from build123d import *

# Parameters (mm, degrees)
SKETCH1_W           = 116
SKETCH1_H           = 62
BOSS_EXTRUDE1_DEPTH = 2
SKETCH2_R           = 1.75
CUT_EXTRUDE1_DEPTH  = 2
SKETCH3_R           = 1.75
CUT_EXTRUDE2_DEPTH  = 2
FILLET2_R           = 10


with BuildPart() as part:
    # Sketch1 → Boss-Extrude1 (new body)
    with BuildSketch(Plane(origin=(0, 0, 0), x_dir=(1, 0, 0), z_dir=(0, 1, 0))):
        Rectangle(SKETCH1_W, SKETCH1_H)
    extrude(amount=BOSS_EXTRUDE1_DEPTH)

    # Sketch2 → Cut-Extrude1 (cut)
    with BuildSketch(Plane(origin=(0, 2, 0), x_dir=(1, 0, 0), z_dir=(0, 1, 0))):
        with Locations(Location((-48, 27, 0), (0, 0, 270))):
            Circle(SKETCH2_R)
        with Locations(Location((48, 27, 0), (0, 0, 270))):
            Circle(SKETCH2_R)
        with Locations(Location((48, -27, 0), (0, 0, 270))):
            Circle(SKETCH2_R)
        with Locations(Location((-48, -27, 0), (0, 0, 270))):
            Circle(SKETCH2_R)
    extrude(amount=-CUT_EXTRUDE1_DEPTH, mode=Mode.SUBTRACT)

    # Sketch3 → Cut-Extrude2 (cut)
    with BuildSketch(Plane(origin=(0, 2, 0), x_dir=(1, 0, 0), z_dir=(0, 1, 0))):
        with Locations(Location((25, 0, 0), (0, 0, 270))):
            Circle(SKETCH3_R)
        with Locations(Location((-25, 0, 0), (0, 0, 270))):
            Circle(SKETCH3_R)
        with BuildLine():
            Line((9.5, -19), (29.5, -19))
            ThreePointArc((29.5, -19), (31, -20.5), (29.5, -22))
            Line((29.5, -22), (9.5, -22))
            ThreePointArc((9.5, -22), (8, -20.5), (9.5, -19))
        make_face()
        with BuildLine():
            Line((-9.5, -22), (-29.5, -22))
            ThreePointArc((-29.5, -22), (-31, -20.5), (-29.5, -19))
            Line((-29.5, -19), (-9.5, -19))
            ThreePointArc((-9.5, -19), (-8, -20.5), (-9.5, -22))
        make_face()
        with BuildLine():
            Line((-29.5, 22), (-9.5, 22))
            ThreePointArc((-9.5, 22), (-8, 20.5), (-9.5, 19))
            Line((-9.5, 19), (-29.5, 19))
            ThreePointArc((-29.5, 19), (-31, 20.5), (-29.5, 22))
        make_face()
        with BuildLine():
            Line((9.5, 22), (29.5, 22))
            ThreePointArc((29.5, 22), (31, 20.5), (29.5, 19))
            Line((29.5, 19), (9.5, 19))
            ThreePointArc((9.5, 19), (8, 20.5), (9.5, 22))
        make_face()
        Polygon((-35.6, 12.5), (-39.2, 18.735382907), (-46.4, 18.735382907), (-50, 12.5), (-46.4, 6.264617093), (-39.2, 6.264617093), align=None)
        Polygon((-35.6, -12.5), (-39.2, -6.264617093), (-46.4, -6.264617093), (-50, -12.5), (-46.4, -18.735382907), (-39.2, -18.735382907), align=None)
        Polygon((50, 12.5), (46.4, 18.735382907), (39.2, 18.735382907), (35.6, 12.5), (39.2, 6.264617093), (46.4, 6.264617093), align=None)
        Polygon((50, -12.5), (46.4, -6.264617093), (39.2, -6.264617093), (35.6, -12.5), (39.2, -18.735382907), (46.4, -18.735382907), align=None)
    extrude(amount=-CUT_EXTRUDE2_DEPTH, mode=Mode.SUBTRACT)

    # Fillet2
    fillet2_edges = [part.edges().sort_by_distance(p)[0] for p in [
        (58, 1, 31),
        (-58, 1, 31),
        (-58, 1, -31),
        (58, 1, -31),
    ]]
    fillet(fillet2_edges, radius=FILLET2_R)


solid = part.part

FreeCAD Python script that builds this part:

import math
import FreeCAD as App
import Part
import Sketcher
Q = App.Units.Quantity


def edges_at(feature, points):
    """Names of the edges that pass closest to the given points."""
    edges = feature.Shape.Edges
    near = lambda p: min(range(len(edges)), key=lambda i: edges[i].distToShape(Part.Vertex(*p))[0])
    return sorted({f"Edge{near(p) + 1}" for p in points})

doc = App.newDocument("Part")
body = doc.addObject("PartDesign::Body", "Body")

# Sketch on XZ plane
sketch1 = body.newObject("Sketcher::SketchObject", "Sketch")
sketch1.AttachmentSupport = (doc.getObject("XZ_Plane"), [""])
sketch1.MapMode = "FlatFace"
sketch1.addGeometry(Part.LineSegment(App.Vector(-58, -31, 0), App.Vector(-58, 31, 0)), False)
sketch1.addGeometry(Part.LineSegment(App.Vector(-58, 31, 0), App.Vector(58, 31, 0)), False)
sketch1.addGeometry(Part.LineSegment(App.Vector(58, 31, 0), App.Vector(58, -31, 0)), False)
sketch1.addGeometry(Part.LineSegment(App.Vector(58, -31, 0), App.Vector(-58, -31, 0)), False)
sketch1.addConstraint(Sketcher.Constraint("Coincident", 0, 2, 1, 1))
sketch1.addConstraint(Sketcher.Constraint("Coincident", 1, 2, 2, 1))
sketch1.addConstraint(Sketcher.Constraint("Coincident", 2, 2, 3, 1))
sketch1.addConstraint(Sketcher.Constraint("Coincident", 3, 2, 0, 1))
sketch1.addConstraint(Sketcher.Constraint("Vertical", 0))
sketch1.addConstraint(Sketcher.Constraint("Horizontal", 1))
sketch1.addConstraint(Sketcher.Constraint("Vertical", 2))
sketch1.addConstraint(Sketcher.Constraint("Horizontal", 3))
sketch1.addConstraint(Sketcher.Constraint("Symmetric", 0, 2, 2, 2, -1, 1))
sketch1.addConstraint(Sketcher.Constraint("DistanceX", 1, 1, 1, 2, Q("116 mm")))
sketch1.addConstraint(Sketcher.Constraint("DistanceY", 0, 1, 0, 2, Q("62 mm")))
pad1 = body.newObject("PartDesign::Pad", "Pad")
pad1.Profile = sketch1
pad1.Length = 2
pad1.Reversed = True

# Sketch on XZ plane
sketch2 = body.newObject("Sketcher::SketchObject", "Sketch001")
sketch2.AttachmentSupport = (doc.getObject("XZ_Plane"), [""])
sketch2.MapMode = "FlatFace"
sketch2.AttachmentOffset = App.Placement(App.Vector(0, 0, -2), App.Rotation())
sketch2.addGeometry(Part.Circle(App.Vector(-48, -27, 0), App.Vector(0, 0, 1), 1.8), False)
sketch2.addGeometry(Part.Circle(App.Vector(48, -27, 0), App.Vector(0, 0, 1), 1.8), False)
sketch2.addGeometry(Part.Circle(App.Vector(48, 27, 0), App.Vector(0, 0, 1), 1.8), False)
sketch2.addGeometry(Part.Circle(App.Vector(-48, 27, 0), App.Vector(0, 0, 1), 1.8), False)
sketch2.addConstraint(Sketcher.Constraint("Equal", 0, 1))
sketch2.addConstraint(Sketcher.Constraint("Equal", 1, 2))
sketch2.addConstraint(Sketcher.Constraint("Equal", 2, 3))
sketch2.addConstraint(Sketcher.Constraint("Symmetric", 0, 3, 2, 3, -1, 1))
sketch2.addConstraint(Sketcher.Constraint("Symmetric", 1, 3, 3, 3, -1, 1))
sketch2.addConstraint(Sketcher.Constraint("Symmetric", 0, 3, 1, 3, -2))
sketch2.addConstraint(Sketcher.Constraint("Diameter", 0, Q("3.5 mm")))
sketch2.addConstraint(Sketcher.Constraint("DistanceX", 0, 3, -1, 1, Q("48 mm")))
sketch2.addConstraint(Sketcher.Constraint("DistanceY", 0, 3, -1, 1, Q("27 mm")))
pocket1 = body.newObject("PartDesign::Pocket", "Pocket")
pocket1.Profile = sketch2
pocket1.Length = 2
pocket1.Reversed = True

# Sketch on XZ plane
sketch3 = body.newObject("Sketcher::SketchObject", "Sketch002")
sketch3.AttachmentSupport = (doc.getObject("XZ_Plane"), [""])
sketch3.MapMode = "FlatFace"
sketch3.AttachmentOffset = App.Placement(App.Vector(0, 0, -2), App.Rotation())
sketch3.addGeometry(Part.Circle(App.Vector(25, 0, 0), App.Vector(0, 0, 1), 1.8), False)
sketch3.addGeometry(Part.Circle(App.Vector(-25, 0, 0), App.Vector(0, 0, 1), 1.8), False)
sketch3.addGeometry(Part.LineSegment(App.Vector(29.5, 19, 0), App.Vector(9.5, 19, 0)), False)
sketch3.addGeometry(Part.ArcOfCircle(Part.Circle(App.Vector(9.5, 20.5, 0), App.Vector(0, 0, 1), 1.5), math.radians(90), math.radians(270)), False)
sketch3.addGeometry(Part.LineSegment(App.Vector(9.5, 22, 0), App.Vector(29.5, 22, 0)), False)
sketch3.addGeometry(Part.ArcOfCircle(Part.Circle(App.Vector(29.5, 20.5, 0), App.Vector(0, 0, 1), 1.5), math.radians(-90), math.radians(90)), False)
sketch3.addGeometry(Part.LineSegment(App.Vector(-29.5, 22, 0), App.Vector(-9.5, 22, 0)), False)
sketch3.addGeometry(Part.ArcOfCircle(Part.Circle(App.Vector(-9.5, 20.5, 0), App.Vector(0, 0, 1), 1.5), math.radians(-90), math.radians(90)), False)
sketch3.addGeometry(Part.LineSegment(App.Vector(-9.5, 19, 0), App.Vector(-29.5, 19, 0)), False)
sketch3.addGeometry(Part.ArcOfCircle(Part.Circle(App.Vector(-29.5, 20.5, 0), App.Vector(0, 0, 1), 1.5), math.radians(90), math.radians(270)), False)
sketch3.addGeometry(Part.LineSegment(App.Vector(-9.5, -22, 0), App.Vector(-29.5, -22, 0)), False)
sketch3.addGeometry(Part.ArcOfCircle(Part.Circle(App.Vector(-29.5, -20.5, 0), App.Vector(0, 0, 1), 1.5), math.radians(90), math.radians(270)), False)
sketch3.addGeometry(Part.LineSegment(App.Vector(-29.5, -19, 0), App.Vector(-9.5, -19, 0)), False)
sketch3.addGeometry(Part.ArcOfCircle(Part.Circle(App.Vector(-9.5, -20.5, 0), App.Vector(0, 0, 1), 1.5), math.radians(-90), math.radians(90)), False)
sketch3.addGeometry(Part.LineSegment(App.Vector(29.5, -22, 0), App.Vector(9.5, -22, 0)), False)
sketch3.addGeometry(Part.ArcOfCircle(Part.Circle(App.Vector(9.5, -20.5, 0), App.Vector(0, 0, 1), 1.5), math.radians(90), math.radians(270)), False)
sketch3.addGeometry(Part.LineSegment(App.Vector(9.5, -19, 0), App.Vector(29.5, -19, 0)), False)
sketch3.addGeometry(Part.ArcOfCircle(Part.Circle(App.Vector(29.5, -20.5, 0), App.Vector(0, 0, 1), 1.5), math.radians(-90), math.radians(90)), False)
sketch3.addGeometry(Part.LineSegment(App.Vector(-35.6, -12.5, 0), App.Vector(-39.2, -18.7, 0)), False)
sketch3.addGeometry(Part.LineSegment(App.Vector(-39.2, -18.7, 0), App.Vector(-46.4, -18.7, 0)), False)
sketch3.addGeometry(Part.LineSegment(App.Vector(-46.4, -18.7, 0), App.Vector(-50, -12.5, 0)), False)
sketch3.addGeometry(Part.LineSegment(App.Vector(-50, -12.5, 0), App.Vector(-46.4, -6.3, 0)), False)
sketch3.addGeometry(Part.LineSegment(App.Vector(-46.4, -6.3, 0), App.Vector(-39.2, -6.3, 0)), False)
sketch3.addGeometry(Part.LineSegment(App.Vector(-39.2, -6.3, 0), App.Vector(-35.6, -12.5, 0)), False)
sketch3.addGeometry(Part.LineSegment(App.Vector(-35.6, 12.5, 0), App.Vector(-39.2, 6.3, 0)), False)
sketch3.addGeometry(Part.LineSegment(App.Vector(-39.2, 6.3, 0), App.Vector(-46.4, 6.3, 0)), False)
sketch3.addGeometry(Part.LineSegment(App.Vector(-46.4, 6.3, 0), App.Vector(-50, 12.5, 0)), False)
sketch3.addGeometry(Part.LineSegment(App.Vector(-50, 12.5, 0), App.Vector(-46.4, 18.7, 0)), False)
sketch3.addGeometry(Part.LineSegment(App.Vector(-46.4, 18.7, 0), App.Vector(-39.2, 18.7, 0)), False)
sketch3.addGeometry(Part.LineSegment(App.Vector(-39.2, 18.7, 0), App.Vector(-35.6, 12.5, 0)), False)
sketch3.addGeometry(Part.LineSegment(App.Vector(50, -12.5, 0), App.Vector(46.4, -18.7, 0)), False)
sketch3.addGeometry(Part.LineSegment(App.Vector(46.4, -18.7, 0), App.Vector(39.2, -18.7, 0)), False)
sketch3.addGeometry(Part.LineSegment(App.Vector(39.2, -18.7, 0), App.Vector(35.6, -12.5, 0)), False)
sketch3.addGeometry(Part.LineSegment(App.Vector(35.6, -12.5, 0), App.Vector(39.2, -6.3, 0)), False)
sketch3.addGeometry(Part.LineSegment(App.Vector(39.2, -6.3, 0), App.Vector(46.4, -6.3, 0)), False)
sketch3.addGeometry(Part.LineSegment(App.Vector(46.4, -6.3, 0), App.Vector(50, -12.5, 0)), False)
sketch3.addGeometry(Part.LineSegment(App.Vector(50, 12.5, 0), App.Vector(46.4, 6.3, 0)), False)
sketch3.addGeometry(Part.LineSegment(App.Vector(46.4, 6.3, 0), App.Vector(39.2, 6.3, 0)), False)
sketch3.addGeometry(Part.LineSegment(App.Vector(39.2, 6.3, 0), App.Vector(35.6, 12.5, 0)), False)
sketch3.addGeometry(Part.LineSegment(App.Vector(35.6, 12.5, 0), App.Vector(39.2, 18.7, 0)), False)
sketch3.addGeometry(Part.LineSegment(App.Vector(39.2, 18.7, 0), App.Vector(46.4, 18.7, 0)), False)
sketch3.addGeometry(Part.LineSegment(App.Vector(46.4, 18.7, 0), App.Vector(50, 12.5, 0)), False)
sketch3.addConstraint(Sketcher.Constraint("Tangent", 2, 2, 3, 2))
sketch3.addConstraint(Sketcher.Constraint("Tangent", 3, 1, 4, 1))
sketch3.addConstraint(Sketcher.Constraint("Tangent", 4, 2, 5, 2))
sketch3.addConstraint(Sketcher.Constraint("Tangent", 5, 1, 2, 1))
sketch3.addConstraint(Sketcher.Constraint("Tangent", 6, 2, 7, 2))
sketch3.addConstraint(Sketcher.Constraint("Tangent", 7, 1, 8, 1))
sketch3.addConstraint(Sketcher.Constraint("Tangent", 8, 2, 9, 2))
sketch3.addConstraint(Sketcher.Constraint("Tangent", 9, 1, 6, 1))
sketch3.addConstraint(Sketcher.Constraint("Tangent", 10, 2, 11, 2))
sketch3.addConstraint(Sketcher.Constraint("Tangent", 11, 1, 12, 1))
sketch3.addConstraint(Sketcher.Constraint("Tangent", 12, 2, 13, 2))
sketch3.addConstraint(Sketcher.Constraint("Tangent", 13, 1, 10, 1))
sketch3.addConstraint(Sketcher.Constraint("Tangent", 14, 2, 15, 2))
sketch3.addConstraint(Sketcher.Constraint("Tangent", 15, 1, 16, 1))
sketch3.addConstraint(Sketcher.Constraint("Tangent", 16, 2, 17, 2))
sketch3.addConstraint(Sketcher.Constraint("Tangent", 17, 1, 14, 1))
sketch3.addConstraint(Sketcher.Constraint("Coincident", 18, 2, 19, 1))
sketch3.addConstraint(Sketcher.Constraint("Coincident", 19, 2, 20, 1))
sketch3.addConstraint(Sketcher.Constraint("Coincident", 20, 2, 21, 1))
sketch3.addConstraint(Sketcher.Constraint("Coincident", 21, 2, 22, 1))
sketch3.addConstraint(Sketcher.Constraint("Coincident", 22, 2, 23, 1))
sketch3.addConstraint(Sketcher.Constraint("Coincident", 23, 2, 18, 1))
sketch3.addConstraint(Sketcher.Constraint("Coincident", 24, 2, 25, 1))
sketch3.addConstraint(Sketcher.Constraint("Coincident", 25, 2, 26, 1))
sketch3.addConstraint(Sketcher.Constraint("Coincident", 26, 2, 27, 1))
sketch3.addConstraint(Sketcher.Constraint("Coincident", 27, 2, 28, 1))
sketch3.addConstraint(Sketcher.Constraint("Coincident", 28, 2, 29, 1))
sketch3.addConstraint(Sketcher.Constraint("Coincident", 29, 2, 24, 1))
sketch3.addConstraint(Sketcher.Constraint("Coincident", 30, 2, 31, 1))
sketch3.addConstraint(Sketcher.Constraint("Coincident", 31, 2, 32, 1))
sketch3.addConstraint(Sketcher.Constraint("Coincident", 32, 2, 33, 1))
sketch3.addConstraint(Sketcher.Constraint("Coincident", 33, 2, 34, 1))
sketch3.addConstraint(Sketcher.Constraint("Coincident", 34, 2, 35, 1))
sketch3.addConstraint(Sketcher.Constraint("Coincident", 35, 2, 30, 1))
sketch3.addConstraint(Sketcher.Constraint("Coincident", 36, 2, 37, 1))
sketch3.addConstraint(Sketcher.Constraint("Coincident", 37, 2, 38, 1))
sketch3.addConstraint(Sketcher.Constraint("Coincident", 38, 2, 39, 1))
sketch3.addConstraint(Sketcher.Constraint("Coincident", 39, 2, 40, 1))
sketch3.addConstraint(Sketcher.Constraint("Coincident", 40, 2, 41, 1))
sketch3.addConstraint(Sketcher.Constraint("Coincident", 41, 2, 36, 1))
sketch3.addConstraint(Sketcher.Constraint("Horizontal", 2))
sketch3.addConstraint(Sketcher.Constraint("Horizontal", 4))
sketch3.addConstraint(Sketcher.Constraint("Horizontal", 6))
sketch3.addConstraint(Sketcher.Constraint("Horizontal", 8))
sketch3.addConstraint(Sketcher.Constraint("Horizontal", 10))
sketch3.addConstraint(Sketcher.Constraint("Horizontal", 12))
sketch3.addConstraint(Sketcher.Constraint("Horizontal", 14))
sketch3.addConstraint(Sketcher.Constraint("Horizontal", 16))
sketch3.addConstraint(Sketcher.Constraint("Horizontal", 19))
sketch3.addConstraint(Sketcher.Constraint("Horizontal", 22))
sketch3.addConstraint(Sketcher.Constraint("Horizontal", 25))
sketch3.addConstraint(Sketcher.Constraint("Horizontal", 28))
sketch3.addConstraint(Sketcher.Constraint("Horizontal", 31))
sketch3.addConstraint(Sketcher.Constraint("Horizontal", 34))
sketch3.addConstraint(Sketcher.Constraint("Horizontal", 37))
sketch3.addConstraint(Sketcher.Constraint("Horizontal", 40))
sketch3.addConstraint(Sketcher.Constraint("Equal", 0, 1))
sketch3.addConstraint(Sketcher.Constraint("Equal", 5, 7))
sketch3.addConstraint(Sketcher.Constraint("Equal", 9, 11))
sketch3.addConstraint(Sketcher.Constraint("Equal", 13, 15))
sketch3.addConstraint(Sketcher.Constraint("Symmetric", 0, 3, 1, 3, -1, 1))
sketch3.addConstraint(Sketcher.Constraint("Symmetric", 5, 3, 11, 3, -1, 1))
sketch3.addConstraint(Sketcher.Constraint("Symmetric", 7, 3, 15, 3, -1, 1))
sketch3.addConstraint(Sketcher.Constraint("Symmetric", 27, 2, 30, 2, -1, 1))
sketch3.addConstraint(Sketcher.Constraint("Symmetric", 29, 2, 32, 2, -1, 1))
sketch3.addConstraint(Sketcher.Constraint("Symmetric", 24, 2, 33, 2, -1, 1))
sketch3.addConstraint(Sketcher.Constraint("Symmetric", 26, 2, 35, 2, -1, 1))
sketch3.addConstraint(Sketcher.Constraint("Symmetric", 21, 2, 36, 2, -1, 1))
sketch3.addConstraint(Sketcher.Constraint("Symmetric", 23, 2, 38, 2, -1, 1))
sketch3.addConstraint(Sketcher.Constraint("Symmetric", 18, 2, 39, 2, -1, 1))
sketch3.addConstraint(Sketcher.Constraint("Symmetric", 20, 2, 41, 2, -1, 1))
sketch3.addConstraint(Sketcher.Constraint("Symmetric", 3, 3, 7, 3, -2))
sketch3.addConstraint(Sketcher.Constraint("Symmetric", 19, 2, 30, 2, -2))
sketch3.addConstraint(Sketcher.Constraint("Symmetric", 23, 2, 32, 2, -2))
sketch3.addConstraint(Sketcher.Constraint("Symmetric", 22, 2, 33, 2, -2))
sketch3.addConstraint(Sketcher.Constraint("Symmetric", 20, 2, 35, 2, -2))
sketch3.addConstraint(Sketcher.Constraint("PointOnObject", 0, 3, -1))
sketch3.addConstraint(Sketcher.Constraint("Parallel", 18, 21))
sketch3.addConstraint(Sketcher.Constraint("Parallel", 20, 23))
sketch3.addConstraint(Sketcher.Constraint("Parallel", 21, 24))
sketch3.addConstraint(Sketcher.Constraint("Parallel", 23, 26))
sketch3.addConstraint(Sketcher.Constraint("Parallel", 26, 29))
sketch3.addConstraint(Sketcher.Constraint("Parallel", 29, 32))
sketch3.addConstraint(Sketcher.Constraint("Parallel", 32, 35))
sketch3.addConstraint(Sketcher.Constraint("Parallel", 35, 38))
sketch3.addConstraint(Sketcher.Constraint("Parallel", 38, 41))
sketch3.addConstraint(Sketcher.Constraint("Horizontal", 20, 2, 23, 2))
sketch3.addConstraint(Sketcher.Constraint("Vertical", 9, 3, 11, 3))
sketch3.addConstraint(Sketcher.Constraint("Vertical", 7, 3, 13, 3))
sketch3.addConstraint(Sketcher.Constraint("Vertical", 5, 3, 17, 3))
sketch3.addConstraint(Sketcher.Constraint("Vertical", 19, 2, 21, 2))
sketch3.addConstraint(Sketcher.Constraint("Diameter", 0, Q("3.5 mm")))
sketch3.addConstraint(Sketcher.Constraint("Radius", 3, Q("1.5 mm")))
sketch3.addConstraint(Sketcher.Constraint("DistanceX", 2, 2, 2, 1, Q("20 mm")))
sketch3.addConstraint(Sketcher.Constraint("Angle", 18, Q("-120 deg")))
sketch3.addConstraint(Sketcher.Constraint("DistanceX", 19, 2, 19, 1, Q("7.2 mm")))
sketch3.addConstraint(Sketcher.Constraint("DistanceX", -1, 1, 0, 3, Q("25 mm")))
sketch3.addConstraint(Sketcher.Constraint("DistanceY", -1, 1, 2, 2, Q("19 mm")))
sketch3.addConstraint(Sketcher.Constraint("DistanceX", 20, 2, -1, 1, Q("50 mm")))
sketch3.addConstraint(Sketcher.Constraint("DistanceX", 7, 3, 3, 3, Q("19 mm")))
sketch3.addConstraint(Sketcher.Constraint("DistanceY", 11, 3, 20, 2, Q("8 mm")))
sketch3.addConstraint(Sketcher.Constraint("Distance", 18, Q("7.2 mm")))
pocket2 = body.newObject("PartDesign::Pocket", "Pocket001")
pocket2.Profile = sketch3
pocket2.Length = 2
pocket2.Reversed = True
doc.recompute()

fillet = body.newObject("PartDesign::Fillet", "Fillet")
fillet.Base = (pocket2, edges_at(pocket2, [
    (58, 1, 31),
    (-58, 1, 31),
    (-58, 1, -31),
    (58, 1, -31),
]))
fillet.Radius = 10

doc.recompute()
